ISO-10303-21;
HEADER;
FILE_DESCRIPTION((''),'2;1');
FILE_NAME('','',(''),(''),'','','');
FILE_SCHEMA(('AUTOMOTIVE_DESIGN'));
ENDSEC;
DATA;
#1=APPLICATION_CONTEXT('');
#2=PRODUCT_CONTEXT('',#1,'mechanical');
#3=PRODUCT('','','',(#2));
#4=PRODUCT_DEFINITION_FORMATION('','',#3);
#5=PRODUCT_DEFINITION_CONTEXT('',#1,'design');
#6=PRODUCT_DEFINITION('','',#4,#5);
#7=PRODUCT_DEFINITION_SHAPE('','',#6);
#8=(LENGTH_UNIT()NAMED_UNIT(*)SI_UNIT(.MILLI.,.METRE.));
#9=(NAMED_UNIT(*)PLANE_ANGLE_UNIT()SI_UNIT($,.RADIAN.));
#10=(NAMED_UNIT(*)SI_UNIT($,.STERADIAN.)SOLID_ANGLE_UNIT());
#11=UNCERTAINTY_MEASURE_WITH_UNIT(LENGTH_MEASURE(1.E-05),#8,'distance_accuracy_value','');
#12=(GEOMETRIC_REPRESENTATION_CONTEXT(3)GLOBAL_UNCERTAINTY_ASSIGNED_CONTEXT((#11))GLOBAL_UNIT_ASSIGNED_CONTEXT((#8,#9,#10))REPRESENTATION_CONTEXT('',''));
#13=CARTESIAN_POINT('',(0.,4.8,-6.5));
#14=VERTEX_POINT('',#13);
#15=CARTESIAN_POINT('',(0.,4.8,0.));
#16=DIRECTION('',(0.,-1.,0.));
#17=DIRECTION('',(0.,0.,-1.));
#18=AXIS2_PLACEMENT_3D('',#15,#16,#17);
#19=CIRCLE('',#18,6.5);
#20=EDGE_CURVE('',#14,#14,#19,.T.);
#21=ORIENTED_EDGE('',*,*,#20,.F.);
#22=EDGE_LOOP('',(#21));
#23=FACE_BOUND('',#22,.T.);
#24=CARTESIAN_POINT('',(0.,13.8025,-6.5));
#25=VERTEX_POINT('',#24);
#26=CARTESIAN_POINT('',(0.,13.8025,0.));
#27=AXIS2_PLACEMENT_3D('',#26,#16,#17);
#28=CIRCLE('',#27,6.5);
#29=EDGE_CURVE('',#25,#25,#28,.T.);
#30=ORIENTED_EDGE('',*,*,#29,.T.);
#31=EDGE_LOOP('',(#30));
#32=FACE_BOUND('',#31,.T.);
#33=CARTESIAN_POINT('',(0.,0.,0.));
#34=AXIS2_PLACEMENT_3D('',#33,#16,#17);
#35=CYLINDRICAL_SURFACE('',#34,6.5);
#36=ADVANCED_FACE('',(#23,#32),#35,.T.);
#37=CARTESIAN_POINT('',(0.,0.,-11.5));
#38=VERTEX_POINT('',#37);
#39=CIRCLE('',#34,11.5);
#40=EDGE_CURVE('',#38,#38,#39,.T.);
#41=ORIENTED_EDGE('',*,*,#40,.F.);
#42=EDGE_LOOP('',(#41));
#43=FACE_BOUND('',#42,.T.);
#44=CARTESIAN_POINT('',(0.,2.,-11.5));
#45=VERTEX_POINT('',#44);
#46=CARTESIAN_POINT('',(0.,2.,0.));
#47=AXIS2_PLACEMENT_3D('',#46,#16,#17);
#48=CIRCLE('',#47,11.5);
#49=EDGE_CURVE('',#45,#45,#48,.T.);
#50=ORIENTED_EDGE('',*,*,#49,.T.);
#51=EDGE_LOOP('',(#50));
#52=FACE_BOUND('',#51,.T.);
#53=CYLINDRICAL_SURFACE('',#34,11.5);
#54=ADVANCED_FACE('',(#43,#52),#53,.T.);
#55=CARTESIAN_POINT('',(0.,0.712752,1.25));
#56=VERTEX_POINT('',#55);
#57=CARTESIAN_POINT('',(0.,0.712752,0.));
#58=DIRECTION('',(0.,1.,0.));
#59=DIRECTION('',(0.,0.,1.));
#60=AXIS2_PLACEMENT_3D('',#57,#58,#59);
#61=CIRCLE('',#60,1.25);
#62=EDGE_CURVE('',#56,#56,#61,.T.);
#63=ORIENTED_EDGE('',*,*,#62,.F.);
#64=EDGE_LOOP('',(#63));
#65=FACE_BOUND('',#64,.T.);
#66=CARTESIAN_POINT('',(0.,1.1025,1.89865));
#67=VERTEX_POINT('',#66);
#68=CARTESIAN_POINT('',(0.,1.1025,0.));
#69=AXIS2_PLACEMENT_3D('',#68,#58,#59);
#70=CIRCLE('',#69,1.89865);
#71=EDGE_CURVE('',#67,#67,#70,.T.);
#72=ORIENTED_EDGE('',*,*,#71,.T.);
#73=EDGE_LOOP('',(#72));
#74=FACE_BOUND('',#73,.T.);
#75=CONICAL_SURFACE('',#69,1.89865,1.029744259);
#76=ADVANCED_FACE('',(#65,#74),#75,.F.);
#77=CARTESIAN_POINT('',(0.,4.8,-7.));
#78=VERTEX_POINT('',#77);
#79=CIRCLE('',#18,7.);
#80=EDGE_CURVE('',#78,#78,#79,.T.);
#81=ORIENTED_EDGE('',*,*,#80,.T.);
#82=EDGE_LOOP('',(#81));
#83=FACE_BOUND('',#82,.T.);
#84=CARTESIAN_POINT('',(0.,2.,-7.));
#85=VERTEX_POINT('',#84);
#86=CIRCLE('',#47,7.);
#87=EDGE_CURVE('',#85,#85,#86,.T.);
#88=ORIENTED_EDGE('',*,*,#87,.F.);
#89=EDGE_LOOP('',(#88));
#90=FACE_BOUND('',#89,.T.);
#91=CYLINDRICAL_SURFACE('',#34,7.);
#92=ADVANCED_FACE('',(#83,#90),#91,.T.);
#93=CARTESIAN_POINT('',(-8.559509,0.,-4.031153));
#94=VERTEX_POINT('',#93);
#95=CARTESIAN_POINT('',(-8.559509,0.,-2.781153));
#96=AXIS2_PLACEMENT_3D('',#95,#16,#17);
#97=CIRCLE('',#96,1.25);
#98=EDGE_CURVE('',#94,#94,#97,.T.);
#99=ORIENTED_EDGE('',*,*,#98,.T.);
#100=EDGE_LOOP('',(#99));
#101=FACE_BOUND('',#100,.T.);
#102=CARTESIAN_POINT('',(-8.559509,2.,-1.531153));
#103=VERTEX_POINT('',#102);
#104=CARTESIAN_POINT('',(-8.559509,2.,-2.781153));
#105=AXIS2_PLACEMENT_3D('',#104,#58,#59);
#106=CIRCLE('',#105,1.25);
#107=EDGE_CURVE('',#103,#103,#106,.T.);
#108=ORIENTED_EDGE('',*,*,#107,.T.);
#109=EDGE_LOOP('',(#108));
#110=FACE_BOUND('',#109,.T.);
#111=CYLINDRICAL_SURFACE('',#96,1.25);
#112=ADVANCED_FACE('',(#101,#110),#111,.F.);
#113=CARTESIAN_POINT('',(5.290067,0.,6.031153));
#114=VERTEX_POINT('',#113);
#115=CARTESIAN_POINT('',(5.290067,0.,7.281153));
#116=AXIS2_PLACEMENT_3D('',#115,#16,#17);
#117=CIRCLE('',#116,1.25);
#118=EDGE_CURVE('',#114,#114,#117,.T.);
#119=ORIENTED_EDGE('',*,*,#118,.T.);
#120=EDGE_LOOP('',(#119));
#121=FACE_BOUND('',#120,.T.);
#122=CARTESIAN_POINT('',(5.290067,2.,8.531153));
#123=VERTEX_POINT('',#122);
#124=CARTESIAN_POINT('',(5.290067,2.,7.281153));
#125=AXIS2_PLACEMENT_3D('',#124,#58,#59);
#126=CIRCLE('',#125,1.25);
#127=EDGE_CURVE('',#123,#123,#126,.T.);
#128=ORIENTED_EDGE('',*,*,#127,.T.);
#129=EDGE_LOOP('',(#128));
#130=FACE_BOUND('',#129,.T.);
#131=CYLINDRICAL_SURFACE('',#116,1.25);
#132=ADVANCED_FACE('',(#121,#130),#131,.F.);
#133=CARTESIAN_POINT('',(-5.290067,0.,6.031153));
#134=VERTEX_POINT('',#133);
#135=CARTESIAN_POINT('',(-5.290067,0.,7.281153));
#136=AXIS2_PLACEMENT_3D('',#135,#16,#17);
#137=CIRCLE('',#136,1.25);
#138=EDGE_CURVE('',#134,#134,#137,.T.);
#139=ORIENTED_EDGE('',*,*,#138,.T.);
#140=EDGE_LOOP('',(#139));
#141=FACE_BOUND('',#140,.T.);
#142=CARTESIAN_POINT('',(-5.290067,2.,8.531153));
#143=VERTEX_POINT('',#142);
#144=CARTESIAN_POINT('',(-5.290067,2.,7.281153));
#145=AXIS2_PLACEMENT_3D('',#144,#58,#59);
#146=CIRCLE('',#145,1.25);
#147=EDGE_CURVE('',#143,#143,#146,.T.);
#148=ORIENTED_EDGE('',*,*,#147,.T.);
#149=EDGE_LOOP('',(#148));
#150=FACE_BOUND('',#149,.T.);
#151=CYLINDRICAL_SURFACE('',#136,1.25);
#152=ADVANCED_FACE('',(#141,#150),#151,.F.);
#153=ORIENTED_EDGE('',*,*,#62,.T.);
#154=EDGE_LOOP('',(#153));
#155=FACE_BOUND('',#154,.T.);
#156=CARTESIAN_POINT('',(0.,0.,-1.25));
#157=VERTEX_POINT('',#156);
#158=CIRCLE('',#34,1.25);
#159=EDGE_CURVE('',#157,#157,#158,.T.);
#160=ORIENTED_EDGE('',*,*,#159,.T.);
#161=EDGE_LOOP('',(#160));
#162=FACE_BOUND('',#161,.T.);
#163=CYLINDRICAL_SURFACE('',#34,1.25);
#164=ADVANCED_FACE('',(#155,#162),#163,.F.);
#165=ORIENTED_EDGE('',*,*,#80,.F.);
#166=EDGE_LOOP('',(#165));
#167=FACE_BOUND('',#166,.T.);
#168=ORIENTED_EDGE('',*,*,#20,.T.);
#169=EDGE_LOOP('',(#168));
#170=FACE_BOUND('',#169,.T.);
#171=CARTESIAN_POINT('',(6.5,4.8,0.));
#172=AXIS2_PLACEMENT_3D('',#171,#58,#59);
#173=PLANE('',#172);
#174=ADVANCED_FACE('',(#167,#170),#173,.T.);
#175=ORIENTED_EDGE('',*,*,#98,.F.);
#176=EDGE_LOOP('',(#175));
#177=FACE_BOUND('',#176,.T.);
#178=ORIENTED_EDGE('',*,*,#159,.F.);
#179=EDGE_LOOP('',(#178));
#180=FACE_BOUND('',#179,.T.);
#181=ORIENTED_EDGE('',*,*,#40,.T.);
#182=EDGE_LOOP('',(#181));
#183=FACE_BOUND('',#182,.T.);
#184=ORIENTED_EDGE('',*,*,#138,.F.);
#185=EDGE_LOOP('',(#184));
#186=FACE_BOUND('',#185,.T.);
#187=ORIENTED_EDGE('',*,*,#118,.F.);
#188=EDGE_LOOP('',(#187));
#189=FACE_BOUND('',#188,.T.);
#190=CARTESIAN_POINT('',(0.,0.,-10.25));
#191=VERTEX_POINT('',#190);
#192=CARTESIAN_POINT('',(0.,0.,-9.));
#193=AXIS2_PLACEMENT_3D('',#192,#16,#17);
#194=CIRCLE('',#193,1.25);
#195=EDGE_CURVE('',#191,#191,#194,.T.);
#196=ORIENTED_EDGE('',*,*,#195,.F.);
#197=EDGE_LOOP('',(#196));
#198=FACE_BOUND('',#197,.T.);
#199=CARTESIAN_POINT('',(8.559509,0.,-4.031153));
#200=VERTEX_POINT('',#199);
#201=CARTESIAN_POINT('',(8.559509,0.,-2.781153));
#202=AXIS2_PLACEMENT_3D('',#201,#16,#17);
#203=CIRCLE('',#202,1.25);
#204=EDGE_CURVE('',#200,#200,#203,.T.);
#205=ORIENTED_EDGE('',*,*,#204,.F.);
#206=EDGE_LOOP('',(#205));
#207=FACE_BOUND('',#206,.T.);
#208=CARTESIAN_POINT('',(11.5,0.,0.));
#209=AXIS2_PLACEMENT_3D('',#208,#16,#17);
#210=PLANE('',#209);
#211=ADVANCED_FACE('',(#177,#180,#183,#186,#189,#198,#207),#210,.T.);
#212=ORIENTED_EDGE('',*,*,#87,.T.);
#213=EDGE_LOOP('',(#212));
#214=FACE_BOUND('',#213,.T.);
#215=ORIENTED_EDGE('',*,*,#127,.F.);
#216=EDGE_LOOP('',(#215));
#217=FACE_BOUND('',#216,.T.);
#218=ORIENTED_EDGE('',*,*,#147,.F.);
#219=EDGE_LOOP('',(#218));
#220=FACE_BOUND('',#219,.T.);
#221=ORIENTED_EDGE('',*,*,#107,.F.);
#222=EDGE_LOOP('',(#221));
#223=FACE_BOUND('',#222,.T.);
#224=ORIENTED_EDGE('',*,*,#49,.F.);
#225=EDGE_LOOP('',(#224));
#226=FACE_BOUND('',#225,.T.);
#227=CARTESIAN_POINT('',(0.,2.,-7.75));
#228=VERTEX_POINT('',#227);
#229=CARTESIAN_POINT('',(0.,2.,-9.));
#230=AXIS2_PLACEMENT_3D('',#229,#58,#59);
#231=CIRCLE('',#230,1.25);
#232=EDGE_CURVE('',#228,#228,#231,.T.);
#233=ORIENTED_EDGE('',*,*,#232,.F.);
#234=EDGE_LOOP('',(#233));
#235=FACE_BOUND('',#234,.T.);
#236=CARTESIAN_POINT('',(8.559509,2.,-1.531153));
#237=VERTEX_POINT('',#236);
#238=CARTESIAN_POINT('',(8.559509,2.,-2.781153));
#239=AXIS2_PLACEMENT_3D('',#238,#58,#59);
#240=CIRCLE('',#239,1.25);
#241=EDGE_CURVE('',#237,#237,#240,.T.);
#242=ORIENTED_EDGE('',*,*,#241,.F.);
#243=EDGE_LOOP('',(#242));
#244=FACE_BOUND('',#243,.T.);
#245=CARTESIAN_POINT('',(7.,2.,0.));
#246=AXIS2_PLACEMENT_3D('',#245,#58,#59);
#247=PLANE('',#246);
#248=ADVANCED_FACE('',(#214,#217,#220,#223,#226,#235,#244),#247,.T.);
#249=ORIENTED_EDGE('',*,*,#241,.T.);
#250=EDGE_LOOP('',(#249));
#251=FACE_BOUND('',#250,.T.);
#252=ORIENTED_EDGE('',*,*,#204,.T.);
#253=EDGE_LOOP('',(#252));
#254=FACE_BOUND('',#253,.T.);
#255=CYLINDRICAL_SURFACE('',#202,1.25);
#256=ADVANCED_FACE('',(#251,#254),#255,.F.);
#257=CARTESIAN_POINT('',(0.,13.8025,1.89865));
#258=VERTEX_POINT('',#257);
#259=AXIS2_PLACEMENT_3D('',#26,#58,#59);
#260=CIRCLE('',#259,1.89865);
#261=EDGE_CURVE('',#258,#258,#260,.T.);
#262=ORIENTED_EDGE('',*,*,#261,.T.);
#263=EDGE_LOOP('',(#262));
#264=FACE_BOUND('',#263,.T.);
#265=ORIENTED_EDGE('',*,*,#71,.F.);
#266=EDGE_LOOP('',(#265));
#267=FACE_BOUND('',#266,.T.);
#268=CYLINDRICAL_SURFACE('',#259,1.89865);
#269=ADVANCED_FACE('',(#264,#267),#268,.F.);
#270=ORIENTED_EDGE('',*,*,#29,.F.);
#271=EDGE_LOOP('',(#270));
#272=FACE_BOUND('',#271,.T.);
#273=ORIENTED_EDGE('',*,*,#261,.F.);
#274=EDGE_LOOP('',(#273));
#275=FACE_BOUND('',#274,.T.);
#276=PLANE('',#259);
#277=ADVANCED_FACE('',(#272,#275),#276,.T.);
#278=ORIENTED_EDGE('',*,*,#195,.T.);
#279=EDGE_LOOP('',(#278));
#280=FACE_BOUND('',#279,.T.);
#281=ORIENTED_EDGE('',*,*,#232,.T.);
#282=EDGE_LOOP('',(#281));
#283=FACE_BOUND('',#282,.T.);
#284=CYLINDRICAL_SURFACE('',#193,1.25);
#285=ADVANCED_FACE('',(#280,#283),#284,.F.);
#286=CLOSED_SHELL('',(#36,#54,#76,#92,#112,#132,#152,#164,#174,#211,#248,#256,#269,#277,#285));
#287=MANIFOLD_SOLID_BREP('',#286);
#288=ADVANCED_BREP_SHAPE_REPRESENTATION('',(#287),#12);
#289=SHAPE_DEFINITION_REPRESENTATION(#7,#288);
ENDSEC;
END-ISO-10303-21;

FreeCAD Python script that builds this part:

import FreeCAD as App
import Part
import Sketcher
from FreeCAD import Vector

doc = App.newDocument("Part")
params = doc.addObject("Spreadsheet::Sheet", "Params")
for row, (alias, value) in enumerate([
    ("sketch1_height", "2 mm"),
    ("sketch1_width", "6.5 mm"),
    ("sketch1_width2", "11.5 mm"),
    ("sketch1_width3", "4.5 mm"),
    ("sketch1_height2", "2.8 mm"),
    ("revolution_angle", "360 deg"),
    ("sketch2_diameter", "2.5 mm"),
    ("hole_diameter", "2.5 mm"),
    ("hole2_diameter", "3.7973 mm"),
    ("hole2_depth", "12.7 mm"),
], start=1):
    params.set(f"A{row}", alias)
    params.set(f"B{row}", "=" + value)
    params.setAlias(f"B{row}", alias)

body = doc.addObject("PartDesign::Body", "Body")

sketch1 = doc.addObject("Sketcher::SketchObject", "Sketch")
body.addObject(sketch1)
sketch1.AttachmentSupport = (doc.XY_Plane, [""])
sketch1.MapMode = "FlatFace"
sketch1.addGeometry([
    Part.LineSegment(Vector(6.5, 13.8025, 0), Vector(0, 13.8025, 0)),
    Part.LineSegment(Vector(0, 13.8025, 0), Vector(0, 0, 0)),
    Part.LineSegment(Vector(0, 0, 0), Vector(11.5, 0, 0)),
    Part.LineSegment(Vector(11.5, 0, 0), Vector(11.5, 2, 0)),
    Part.LineSegment(Vector(11.5, 2, 0), Vector(7, 2, 0)),
    Part.LineSegment(Vector(7, 2, 0), Vector(7, 4.8, 0)),
    Part.LineSegment(Vector(7, 4.8, 0), Vector(6.5, 4.8, 0)),
    Part.LineSegment(Vector(6.5, 4.8, 0), Vector(6.5, 13.8025, 0)),
], False)
sketch1.addConstraint([
    Sketcher.Constraint("Coincident", 0, 2, 1, 1),
    Sketcher.Constraint("Coincident", 1, 2, 2, 1),
    Sketcher.Constraint("Coincident", 2, 2, 3, 1),
    Sketcher.Constraint("Coincident", 3, 2, 4, 1),
    Sketcher.Constraint("Coincident", 4, 2, 5, 1),
    Sketcher.Constraint("Coincident", 5, 2, 6, 1),
    Sketcher.Constraint("Coincident", 6, 2, 7, 1),
    Sketcher.Constraint("Coincident", 7, 2, 0, 1),
    Sketcher.Constraint("Horizontal", 0),
    Sketcher.Constraint("Vertical", 1),
    Sketcher.Constraint("Horizontal", 2),
    Sketcher.Constraint("Vertical", 3),
    Sketcher.Constraint("Horizontal", 4),
    Sketcher.Constraint("Vertical", 5),
    Sketcher.Constraint("Horizontal", 6),
    Sketcher.Constraint("Vertical", 7),
    Sketcher.Constraint("Coincident", 1, 2, -1, 1),
    Sketcher.Constraint("DistanceY", 3, 1, 3, 2, 2.0),
    Sketcher.Constraint("DistanceX", 0, 2, 0, 1, 6.5),
    Sketcher.Constraint("DistanceX", 2, 1, 2, 2, 11.5),
    Sketcher.Constraint("DistanceX", 4, 2, 4, 1, 4.5),
    Sketcher.Constraint("DistanceY", 5, 1, 5, 2, 2.8),
    Sketcher.Constraint("DistanceY", 1, 2, 1, 1, 13.8025),
])
sketch1.setExpression("Constraints[17]", "Params.sketch1_height")
sketch1.setExpression("Constraints[18]", "Params.sketch1_width")
sketch1.setExpression("Constraints[19]", "Params.sketch1_width2")
sketch1.setExpression("Constraints[20]", "Params.sketch1_width3")
sketch1.setExpression("Constraints[21]", "Params.sketch1_height2")
revolution = doc.addObject("PartDesign::Revolution", "Revolution")
body.addObject(revolution)
revolution.Profile = sketch1
revolution.ReferenceAxis = (sketch1, ["V_Axis"])
revolution.setExpression("Angle", "Params.revolution_angle")

sketch2 = doc.addObject("Sketcher::SketchObject", "Sketch001")
body.addObject(sketch2)
sketch2.AttachmentSupport = (doc.XZ_Plane, [""])
sketch2.MapMode = "FlatFace"
sketch2.addGeometry([
    Part.Circle(Vector(0, -9, 0), Vector(0, 0, 1), 1.25),
    Part.Circle(Vector(-8.559509, -2.781153, 0), Vector(0, 0, 1), 1.25),
    Part.Circle(Vector(-5.290067, 7.281153, 0), Vector(0, 0, 1), 1.25),
    Part.Circle(Vector(5.290067, 7.281153, 0), Vector(0, 0, 1), 1.25),
    Part.Circle(Vector(8.559509, -2.781153, 0), Vector(0, 0, 1), 1.25),
    Part.Circle(Vector(0, 0, 0), Vector(0, 0, 1), 1.25),
], False)
sketch2.addConstraint([
    Sketcher.Constraint("Coincident", 5, 3, -1, 1),
    Sketcher.Constraint("Equal", 0, 1),
    Sketcher.Constraint("Equal", 1, 2),
    Sketcher.Constraint("Equal", 2, 3),
    Sketcher.Constraint("Equal", 3, 4),
    Sketcher.Constraint("Equal", 4, 5),
    Sketcher.Constraint("Symmetric", 2, 3, 3, 3, -2),
    Sketcher.Constraint("Symmetric", 1, 3, 4, 3, -2),
    Sketcher.Constraint("PointOnObject", 0, 3, -2),
    Sketcher.Constraint("Diameter", 0, 2.5),
    Sketcher.Constraint("DistanceY", 0, 3, -1, 1, 9.0),
    Sketcher.Constraint("DistanceX", 1, 3, -1, 1, 8.559509),
    Sketcher.Constraint("DistanceX", 1, 3, 2, 3, 3.269441),
    Sketcher.Constraint("DistanceY", 1, 3, -1, 1, 2.781153),
    Sketcher.Constraint("DistanceY", -1, 1, 2, 3, 7.281153),
])
sketch2.setExpression("Constraints[9]", "Params.sketch2_diameter")
doc.recompute()
hole = doc.addObject("PartDesign::Hole", "Hole")
body.addObject(hole)
hole.Profile = sketch2
hole.ThreadType = "None"
hole.setExpression("Diameter", "Params.hole_diameter")
hole.DepthType = "ThroughAll"

sketch3 = doc.addObject("Sketcher::SketchObject", "Sketch002")
body.addObject(sketch3)
sketch3.AttachmentSupport = (doc.XZ_Plane, [""])
sketch3.MapMode = "FlatFace"
sketch3.AttachmentOffset = App.Placement(Vector(0, 0, -13.8025), App.Rotation())
sketch3.addGeometry(Part.Circle(Vector(0, 0, 0), Vector(0, 0, 1), 1.89865), False)
sketch3.addConstraint([
    Sketcher.Constraint("Coincident", 0, 3, -1, 1),
    Sketcher.Constraint("Diameter", 0, 3.7973),
])
doc.recompute()
hole2 = doc.addObject("PartDesign::Hole", "Hole001")
body.addObject(hole2)
hole2.Profile = sketch3
hole2.ThreadType = "None"
hole2.setExpression("Diameter", "Params.hole2_diameter")
hole2.DepthType = "Dimension"
hole2.setExpression("Depth", "Params.hole2_depth")
hole2.DrillPoint = "Angled"
hole2.DrillPointAngle = 118
hole2.Reversed = True

doc.recompute()
